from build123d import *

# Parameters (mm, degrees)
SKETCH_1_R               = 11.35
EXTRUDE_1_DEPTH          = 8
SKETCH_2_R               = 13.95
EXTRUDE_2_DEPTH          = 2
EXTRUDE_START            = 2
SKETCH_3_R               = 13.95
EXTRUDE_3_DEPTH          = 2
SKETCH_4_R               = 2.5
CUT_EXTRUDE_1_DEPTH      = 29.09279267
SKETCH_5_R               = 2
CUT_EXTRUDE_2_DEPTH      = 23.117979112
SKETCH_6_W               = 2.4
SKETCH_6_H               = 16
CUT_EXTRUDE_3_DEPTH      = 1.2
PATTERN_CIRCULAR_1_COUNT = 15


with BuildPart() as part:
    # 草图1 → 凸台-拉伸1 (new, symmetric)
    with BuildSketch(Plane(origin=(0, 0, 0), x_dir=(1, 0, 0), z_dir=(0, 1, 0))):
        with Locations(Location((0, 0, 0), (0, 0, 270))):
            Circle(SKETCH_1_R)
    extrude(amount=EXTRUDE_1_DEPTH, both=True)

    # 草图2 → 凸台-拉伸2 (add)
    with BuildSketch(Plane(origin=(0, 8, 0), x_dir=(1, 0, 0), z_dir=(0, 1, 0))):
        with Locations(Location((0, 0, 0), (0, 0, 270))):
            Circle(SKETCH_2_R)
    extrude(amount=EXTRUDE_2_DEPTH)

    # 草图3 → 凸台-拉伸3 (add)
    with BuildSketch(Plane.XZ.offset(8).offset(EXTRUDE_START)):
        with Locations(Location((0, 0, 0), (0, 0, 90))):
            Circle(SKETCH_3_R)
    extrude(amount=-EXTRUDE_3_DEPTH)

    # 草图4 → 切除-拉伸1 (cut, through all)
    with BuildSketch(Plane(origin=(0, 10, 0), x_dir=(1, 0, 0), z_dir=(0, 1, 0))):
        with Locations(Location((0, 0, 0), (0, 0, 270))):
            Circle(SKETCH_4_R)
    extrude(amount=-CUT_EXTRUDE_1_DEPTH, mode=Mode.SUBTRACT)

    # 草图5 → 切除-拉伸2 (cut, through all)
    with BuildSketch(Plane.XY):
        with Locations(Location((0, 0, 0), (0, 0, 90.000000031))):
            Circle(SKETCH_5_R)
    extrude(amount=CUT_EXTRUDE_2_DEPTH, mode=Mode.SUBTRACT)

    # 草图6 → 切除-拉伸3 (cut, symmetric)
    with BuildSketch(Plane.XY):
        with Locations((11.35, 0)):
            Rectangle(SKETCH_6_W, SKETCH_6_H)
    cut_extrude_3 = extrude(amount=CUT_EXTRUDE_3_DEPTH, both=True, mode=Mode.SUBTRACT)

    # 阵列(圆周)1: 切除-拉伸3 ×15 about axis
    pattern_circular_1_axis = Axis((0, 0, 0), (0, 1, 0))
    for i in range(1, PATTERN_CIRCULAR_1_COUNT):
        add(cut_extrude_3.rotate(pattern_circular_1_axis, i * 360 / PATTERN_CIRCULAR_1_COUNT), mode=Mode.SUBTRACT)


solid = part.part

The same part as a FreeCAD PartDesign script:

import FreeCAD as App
import Part
import Sketcher

V = App.Vector
Q = App.Units.Quantity

doc = App.newDocument("Part")
body = doc.addObject("PartDesign::Body", "Body")

sketch1 = body.newObject("Sketcher::SketchObject", "Sketch")
sketch1.AttachmentSupport = (doc.getObject("XZ_Plane"), [""])
sketch1.MapMode = "FlatFace"
sketch1.addGeometry(Part.Circle(V(0, 0, 0), V(0, 0, 1), 11.35), False)
sketch1.addConstraint([
    Sketcher.Constraint("Coincident", 0, 3, -1, 1),
    Sketcher.Constraint("Diameter", 0, Q("22.7 mm")),
])
pad1 = body.newObject("PartDesign::Pad", "Pad")
pad1.Profile = sketch1
pad1.Length = 16
pad1.Midplane = True

sketch2 = body.newObject("Sketcher::SketchObject", "Sketch001")
sketch2.AttachmentSupport = (doc.getObject("XZ_Plane"), [""])
sketch2.MapMode = "FlatFace"
sketch2.AttachmentOffset = App.Placement(V(0, 0, -8), App.Rotation())
sketch2.addGeometry(Part.Circle(V(0, 0, 0), V(0, 0, 1), 13.95), False)
sketch2.addConstraint([
    Sketcher.Constraint("Coincident", 0, 3, -1, 1),
    Sketcher.Constraint("Diameter", 0, Q("27.9 mm")),
])
pad2 = body.newObject("PartDesign::Pad", "Pad001")
pad2.Profile = sketch2
pad2.Length = 2
pad2.Reversed = True

sketch3 = body.newObject("Sketcher::SketchObject", "Sketch002")
sketch3.AttachmentSupport = (doc.getObject("XZ_Plane"), [""])
sketch3.MapMode = "FlatFace"
sketch3.AttachmentOffset = App.Placement(V(0, 0, 10), App.Rotation())
sketch3.addGeometry(Part.Circle(V(0, 0, 0), V(0, 0, 1), 13.95), False)
sketch3.addConstraint([
    Sketcher.Constraint("Coincident", 0, 3, -1, 1),
    Sketcher.Constraint("Diameter", 0, Q("27.9 mm")),
])
pad3 = body.newObject("PartDesign::Pad", "Pad002")
pad3.Profile = sketch3
pad3.Length = 2
pad3.Reversed = True

sketch4 = body.newObject("Sketcher::SketchObject", "Sketch003")
sketch4.AttachmentSupport = (doc.getObject("XZ_Plane"), [""])
sketch4.MapMode = "FlatFace"
sketch4.AttachmentOffset = App.Placement(V(0, 0, -10), App.Rotation())
sketch4.addGeometry(Part.Circle(V(0, 0, 0), V(0, 0, 1), 2.5), False)
sketch4.addConstraint([
    Sketcher.Constraint("Coincident", 0, 3, -1, 1),
    Sketcher.Constraint("Diameter", 0, Q("5 mm")),
])
pocket1 = body.newObject("PartDesign::Pocket", "Pocket")
pocket1.Profile = sketch4
pocket1.Type = "ThroughAll"
pocket1.Reversed = True

sketch5 = body.newObject("Sketcher::SketchObject", "Sketch004")
sketch5.AttachmentSupport = (doc.getObject("XY_Plane"), [""])
sketch5.MapMode = "FlatFace"
sketch5.addGeometry(Part.Circle(V(0, 0, 0), V(0, 0, 1), 2), False)
sketch5.addConstraint([
    Sketcher.Constraint("Coincident", 0, 3, -1, 1),
    Sketcher.Constraint("Diameter", 0, Q("4 mm")),
])
pocket2 = body.newObject("PartDesign::Pocket", "Pocket001")
pocket2.Profile = sketch5
pocket2.Type = "ThroughAll"
pocket2.Reversed = True

sketch6 = body.newObject("Sketcher::SketchObject", "Sketch005")
sketch6.AttachmentSupport = (doc.getObject("XY_Plane"), [""])
sketch6.MapMode = "FlatFace"
sketch6.addGeometry([
    Part.LineSegment(V(10.15, 8, 0), V(10.15, -8, 0)),
    Part.LineSegment(V(10.15, -8, 0), V(12.55, -8, 0)),
    Part.LineSegment(V(12.55, -8, 0), V(12.55, 8, 0)),
    Part.LineSegment(V(12.55, 8, 0), V(10.15, 8, 0)),
], False)
sketch6.addConstraint([
    Sketcher.Constraint("Coincident", 0, 2, 1, 1),
    Sketcher.Constraint("Coincident", 1, 2, 2, 1),
    Sketcher.Constraint("Coincident", 2, 2, 3, 1),
    Sketcher.Constraint("Coincident", 3, 2, 0, 1),
    Sketcher.Constraint("Vertical", 0),
    Sketcher.Constraint("Horizontal", 1),
    Sketcher.Constraint("Vertical", 2),
    Sketcher.Constraint("Horizontal", 3),
    Sketcher.Constraint("DistanceY", 0, 2, 0, 1, Q("16 mm")),
    Sketcher.Constraint("DistanceX", 1, 1, 1, 2, Q("2.4 mm")),
    Sketcher.Constraint("DistanceY", 0, 2, -1, 1, Q("8 mm")),
    Sketcher.Constraint("DistanceX", -1, 1, 0, 2, Q("10.15 mm")),
])
pocket3 = body.newObject("PartDesign::Pocket", "Pocket002")
pocket3.Profile = sketch6
pocket3.Length = 2.4
pocket3.Midplane = True
doc.recompute()

polarpattern = body.newObject("PartDesign::PolarPattern", "PolarPattern")
polarpattern.Originals = [pocket3]
polarpattern.Axis = (doc.getObject("Y_Axis"), [""])
polarpattern.Angle = 360
polarpattern.Occurrences = 15
body.Tip = polarpattern

doc.recompute()
